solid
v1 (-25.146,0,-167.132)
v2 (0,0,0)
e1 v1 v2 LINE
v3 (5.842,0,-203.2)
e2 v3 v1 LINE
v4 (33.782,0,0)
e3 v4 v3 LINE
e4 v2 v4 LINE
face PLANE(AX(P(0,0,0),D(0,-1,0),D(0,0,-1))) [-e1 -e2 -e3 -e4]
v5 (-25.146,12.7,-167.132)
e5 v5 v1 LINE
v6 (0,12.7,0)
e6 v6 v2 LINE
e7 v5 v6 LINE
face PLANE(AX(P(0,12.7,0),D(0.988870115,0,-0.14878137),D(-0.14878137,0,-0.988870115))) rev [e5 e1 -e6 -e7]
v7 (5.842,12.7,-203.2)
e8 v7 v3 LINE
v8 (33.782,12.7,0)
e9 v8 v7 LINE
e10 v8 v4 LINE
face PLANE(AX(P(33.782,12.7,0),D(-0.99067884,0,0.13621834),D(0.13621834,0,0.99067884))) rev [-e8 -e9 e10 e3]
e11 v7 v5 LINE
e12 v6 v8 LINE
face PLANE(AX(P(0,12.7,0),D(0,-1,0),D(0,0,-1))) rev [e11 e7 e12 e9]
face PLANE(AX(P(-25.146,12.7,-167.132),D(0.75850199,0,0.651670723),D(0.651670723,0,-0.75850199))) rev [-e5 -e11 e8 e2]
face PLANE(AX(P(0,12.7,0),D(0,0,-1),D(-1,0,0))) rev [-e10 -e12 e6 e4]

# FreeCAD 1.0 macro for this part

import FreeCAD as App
import Part
import Sketcher
Q = App.Units.Quantity

doc = App.newDocument("Part")
body = doc.addObject("PartDesign::Body", "Body")

sketch1 = doc.addObject("Sketcher::SketchObject", "Sketch")
body.addObject(sketch1)
sketch1.AttachmentSupport = (doc.XZ_Plane, [""])
sketch1.MapMode = "FlatFace"
sketch1.addGeometry(Part.LineSegment(App.Vector(0, 0, 0), App.Vector(34, 0, 0)), False)
sketch1.addGeometry(Part.LineSegment(App.Vector(34, 0, 0), App.Vector(6, -203, 0)), False)
sketch1.addGeometry(Part.LineSegment(App.Vector(6, -203, 0), App.Vector(-25, -167, 0)), False)
sketch1.addGeometry(Part.LineSegment(App.Vector(-25, -167, 0), App.Vector(0, 0, 0)), False)
sketch1.addConstraint(Sketcher.Constraint("Coincident", 0, 2, 1, 1))
sketch1.addConstraint(Sketcher.Constraint("Coincident", 1, 2, 2, 1))
sketch1.addConstraint(Sketcher.Constraint("Coincident", 2, 2, 3, 1))
sketch1.addConstraint(Sketcher.Constraint("Coincident", 3, 2, 0, 1))
sketch1.addConstraint(Sketcher.Constraint("Horizontal", 0))
sketch1.addConstraint(Sketcher.Constraint("Coincident", 3, 2, -1, 1))
sketch1.addConstraint(Sketcher.Constraint("DistanceY", 1, 2, -1, 1, Q("8 in")))
sketch1.addConstraint(Sketcher.Constraint("DistanceX", 0, 1, 0, 2, Q("1.33 in")))
sketch1.addConstraint(Sketcher.Constraint("DistanceX", 1, 2, 0, 2, Q("1.1 in")))
sketch1.addConstraint(Sketcher.Constraint("DistanceX", 2, 2, -1, 1, Q("0.99 in")))
sketch1.addConstraint(Sketcher.Constraint("DistanceY", 2, 2, -1, 1, Q("6.58 in")))
pad1 = doc.addObject("PartDesign::Pad", "Pad")
body.addObject(pad1)
pad1.Profile = sketch1
pad1.Length = Q("0.5 in")
pad1.Reversed = True

doc.recompute()
